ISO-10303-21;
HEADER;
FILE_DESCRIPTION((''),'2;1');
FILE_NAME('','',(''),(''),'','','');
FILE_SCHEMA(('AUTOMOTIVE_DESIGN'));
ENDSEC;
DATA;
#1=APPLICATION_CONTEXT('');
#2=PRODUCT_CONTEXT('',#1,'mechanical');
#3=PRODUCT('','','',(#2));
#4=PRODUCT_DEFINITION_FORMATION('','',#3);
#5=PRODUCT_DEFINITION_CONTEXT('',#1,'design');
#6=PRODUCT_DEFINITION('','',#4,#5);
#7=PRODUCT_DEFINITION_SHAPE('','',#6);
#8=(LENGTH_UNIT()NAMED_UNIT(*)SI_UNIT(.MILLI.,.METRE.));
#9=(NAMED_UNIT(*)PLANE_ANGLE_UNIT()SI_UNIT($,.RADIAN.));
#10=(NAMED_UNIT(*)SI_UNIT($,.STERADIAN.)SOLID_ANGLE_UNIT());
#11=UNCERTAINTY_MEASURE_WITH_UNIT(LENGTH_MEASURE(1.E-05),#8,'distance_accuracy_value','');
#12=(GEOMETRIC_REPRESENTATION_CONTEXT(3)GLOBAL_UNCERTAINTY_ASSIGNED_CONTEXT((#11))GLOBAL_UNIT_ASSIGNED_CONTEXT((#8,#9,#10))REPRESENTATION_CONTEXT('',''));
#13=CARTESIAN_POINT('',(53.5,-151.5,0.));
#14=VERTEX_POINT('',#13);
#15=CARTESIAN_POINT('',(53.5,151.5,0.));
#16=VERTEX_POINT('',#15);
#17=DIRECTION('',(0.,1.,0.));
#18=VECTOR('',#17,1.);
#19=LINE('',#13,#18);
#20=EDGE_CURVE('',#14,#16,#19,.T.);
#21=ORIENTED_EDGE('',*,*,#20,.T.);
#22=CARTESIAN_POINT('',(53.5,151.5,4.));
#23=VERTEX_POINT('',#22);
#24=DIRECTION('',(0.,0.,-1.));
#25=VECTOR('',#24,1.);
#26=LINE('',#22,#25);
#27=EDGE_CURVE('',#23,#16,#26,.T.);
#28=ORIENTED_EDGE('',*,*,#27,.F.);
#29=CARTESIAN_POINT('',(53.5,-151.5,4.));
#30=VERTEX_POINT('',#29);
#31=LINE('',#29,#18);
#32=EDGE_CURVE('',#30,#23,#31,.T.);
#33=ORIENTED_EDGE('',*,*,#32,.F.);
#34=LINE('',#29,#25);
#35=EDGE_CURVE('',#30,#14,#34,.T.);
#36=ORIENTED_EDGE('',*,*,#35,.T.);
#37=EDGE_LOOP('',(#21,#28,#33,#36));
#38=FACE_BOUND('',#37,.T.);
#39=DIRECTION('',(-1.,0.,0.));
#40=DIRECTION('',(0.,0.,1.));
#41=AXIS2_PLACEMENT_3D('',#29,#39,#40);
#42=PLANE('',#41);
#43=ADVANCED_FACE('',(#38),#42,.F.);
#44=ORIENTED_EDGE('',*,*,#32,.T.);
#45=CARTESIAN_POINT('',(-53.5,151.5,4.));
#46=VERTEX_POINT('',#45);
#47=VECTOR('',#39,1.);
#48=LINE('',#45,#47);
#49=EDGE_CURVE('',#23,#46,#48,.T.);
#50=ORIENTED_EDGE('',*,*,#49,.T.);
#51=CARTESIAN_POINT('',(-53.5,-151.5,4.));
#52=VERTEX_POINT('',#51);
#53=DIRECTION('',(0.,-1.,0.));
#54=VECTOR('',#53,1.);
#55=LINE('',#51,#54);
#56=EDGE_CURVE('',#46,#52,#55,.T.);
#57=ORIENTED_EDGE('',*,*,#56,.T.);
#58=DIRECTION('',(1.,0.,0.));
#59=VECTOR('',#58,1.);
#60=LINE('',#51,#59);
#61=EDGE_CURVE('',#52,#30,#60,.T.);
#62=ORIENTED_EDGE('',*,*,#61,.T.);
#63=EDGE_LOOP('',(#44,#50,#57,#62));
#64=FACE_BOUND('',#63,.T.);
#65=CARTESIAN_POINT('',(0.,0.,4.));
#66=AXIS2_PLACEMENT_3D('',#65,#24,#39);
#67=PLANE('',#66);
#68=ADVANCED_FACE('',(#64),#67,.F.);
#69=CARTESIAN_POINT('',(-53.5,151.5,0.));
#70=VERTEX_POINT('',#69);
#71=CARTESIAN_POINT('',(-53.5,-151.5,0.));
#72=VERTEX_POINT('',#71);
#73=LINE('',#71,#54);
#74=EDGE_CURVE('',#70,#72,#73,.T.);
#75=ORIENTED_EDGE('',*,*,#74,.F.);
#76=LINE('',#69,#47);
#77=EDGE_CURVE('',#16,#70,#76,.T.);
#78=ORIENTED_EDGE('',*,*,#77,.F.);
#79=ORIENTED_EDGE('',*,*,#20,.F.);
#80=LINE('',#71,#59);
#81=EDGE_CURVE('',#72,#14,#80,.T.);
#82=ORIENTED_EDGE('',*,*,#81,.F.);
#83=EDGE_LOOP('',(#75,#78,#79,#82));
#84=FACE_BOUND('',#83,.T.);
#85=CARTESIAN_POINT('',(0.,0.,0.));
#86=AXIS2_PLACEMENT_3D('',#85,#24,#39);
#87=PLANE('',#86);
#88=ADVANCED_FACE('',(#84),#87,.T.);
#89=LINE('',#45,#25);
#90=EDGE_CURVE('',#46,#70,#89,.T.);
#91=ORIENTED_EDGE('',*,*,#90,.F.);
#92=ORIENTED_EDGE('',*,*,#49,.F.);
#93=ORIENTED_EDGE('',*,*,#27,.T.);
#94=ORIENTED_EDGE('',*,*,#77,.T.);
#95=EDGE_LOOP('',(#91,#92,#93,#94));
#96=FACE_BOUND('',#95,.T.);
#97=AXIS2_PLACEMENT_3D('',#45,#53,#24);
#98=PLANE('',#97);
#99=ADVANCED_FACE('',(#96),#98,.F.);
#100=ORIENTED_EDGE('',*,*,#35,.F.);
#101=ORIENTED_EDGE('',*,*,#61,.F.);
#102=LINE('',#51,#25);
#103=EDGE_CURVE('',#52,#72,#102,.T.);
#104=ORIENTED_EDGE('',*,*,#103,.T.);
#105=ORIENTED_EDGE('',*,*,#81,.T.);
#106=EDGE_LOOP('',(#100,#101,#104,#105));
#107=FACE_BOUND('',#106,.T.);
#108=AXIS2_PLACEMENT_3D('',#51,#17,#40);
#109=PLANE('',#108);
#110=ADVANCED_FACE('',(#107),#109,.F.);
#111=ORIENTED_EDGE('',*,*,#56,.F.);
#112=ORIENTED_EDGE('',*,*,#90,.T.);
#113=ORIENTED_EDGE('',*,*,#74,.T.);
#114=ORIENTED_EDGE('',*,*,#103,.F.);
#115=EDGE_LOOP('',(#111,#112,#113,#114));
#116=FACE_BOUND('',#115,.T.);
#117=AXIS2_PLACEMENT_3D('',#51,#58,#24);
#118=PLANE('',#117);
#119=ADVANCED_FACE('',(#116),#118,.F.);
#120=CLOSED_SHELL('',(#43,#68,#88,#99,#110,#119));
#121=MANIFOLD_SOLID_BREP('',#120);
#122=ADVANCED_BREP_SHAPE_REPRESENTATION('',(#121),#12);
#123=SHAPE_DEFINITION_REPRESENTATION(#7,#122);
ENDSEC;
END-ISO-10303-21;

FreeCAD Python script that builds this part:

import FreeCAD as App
import Part
import Sketcher

V = App.Vector


def add_polygon(sketch, points):
    """Adds a closed chain of lines whose ends are joined by coincident constraints."""
    first, n = sketch.GeometryCount, len(points)
    for a, b in zip(points, points[1:] + points[:1]):
        sketch.addGeometry(Part.LineSegment(App.Vector(*a, 0), App.Vector(*b, 0)), False)
    for i in range(n):
        sketch.addConstraint(Sketcher.Constraint("Coincident", first + i, 2, first + (i + 1) % n, 1))

doc = App.newDocument("Part")
body = doc.addObject("PartDesign::Body", "Body")

# Sketch on XY plane
sketch1 = doc.addObject("Sketcher::SketchObject", "Sketch")
body.addObject(sketch1)
sketch1.AttachmentSupport = (doc.XY_Plane, [""])
sketch1.MapMode = "FlatFace"
add_polygon(sketch1, [(-54, 152), (-54, -152), (54, -152), (54, 152)])  # lines 0-3
sketch1.addConstraint([
    Sketcher.Constraint("Vertical", 0),
    Sketcher.Constraint("Horizontal", 1),
    Sketcher.Constraint("Vertical", 2),
    Sketcher.Constraint("Horizontal", 3),
    Sketcher.Constraint("Symmetric", 0, 2, 2, 2, -1, 1),
    Sketcher.Constraint("DistanceX", 1, 1, 1, 2, 107.0),
    Sketcher.Constraint("DistanceY", 0, 2, 0, 1, 303.0),
])
pad1 = doc.addObject("PartDesign::Pad", "Pad")
body.addObject(pad1)
pad1.Profile = sketch1
pad1.Length = 4

doc.recompute()
